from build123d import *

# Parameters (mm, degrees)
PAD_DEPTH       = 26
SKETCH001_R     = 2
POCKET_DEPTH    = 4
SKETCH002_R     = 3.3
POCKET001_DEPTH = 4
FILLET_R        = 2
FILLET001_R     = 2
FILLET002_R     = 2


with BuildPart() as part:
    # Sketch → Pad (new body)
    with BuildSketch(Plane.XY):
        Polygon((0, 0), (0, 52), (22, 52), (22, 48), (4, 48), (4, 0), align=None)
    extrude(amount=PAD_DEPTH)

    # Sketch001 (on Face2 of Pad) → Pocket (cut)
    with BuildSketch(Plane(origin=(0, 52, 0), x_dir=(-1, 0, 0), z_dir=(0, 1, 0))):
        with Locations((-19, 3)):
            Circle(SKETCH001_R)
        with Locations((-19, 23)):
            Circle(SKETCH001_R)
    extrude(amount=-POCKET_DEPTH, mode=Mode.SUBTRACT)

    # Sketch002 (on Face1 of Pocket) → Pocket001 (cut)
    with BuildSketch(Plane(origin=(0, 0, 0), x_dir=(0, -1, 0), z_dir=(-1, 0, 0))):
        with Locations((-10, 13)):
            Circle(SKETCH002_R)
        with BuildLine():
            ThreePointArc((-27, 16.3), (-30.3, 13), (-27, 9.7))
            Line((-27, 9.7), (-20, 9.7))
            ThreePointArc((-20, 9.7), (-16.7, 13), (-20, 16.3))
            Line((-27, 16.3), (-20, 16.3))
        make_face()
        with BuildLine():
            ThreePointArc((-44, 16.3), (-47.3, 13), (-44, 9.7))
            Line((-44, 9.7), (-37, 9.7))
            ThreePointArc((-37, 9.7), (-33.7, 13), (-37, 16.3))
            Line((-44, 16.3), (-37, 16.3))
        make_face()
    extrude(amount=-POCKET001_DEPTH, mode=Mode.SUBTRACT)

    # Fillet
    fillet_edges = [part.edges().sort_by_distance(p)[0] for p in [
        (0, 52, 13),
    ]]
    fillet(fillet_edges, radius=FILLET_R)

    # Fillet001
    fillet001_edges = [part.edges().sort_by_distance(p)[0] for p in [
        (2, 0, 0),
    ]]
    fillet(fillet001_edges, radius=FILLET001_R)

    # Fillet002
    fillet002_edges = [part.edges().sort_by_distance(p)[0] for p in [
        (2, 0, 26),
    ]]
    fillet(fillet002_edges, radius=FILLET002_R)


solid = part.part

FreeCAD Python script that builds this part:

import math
import FreeCAD as App
import Part
import Sketcher
from FreeCAD import Vector


def edges_at(feature, points):
    """Names of the edges that pass closest to the given points."""
    edges = feature.Shape.Edges
    near = lambda p: min(range(len(edges)), key=lambda i: edges[i].distToShape(Part.Vertex(*p))[0])
    return sorted({f"Edge{near(p) + 1}" for p in points})

doc = App.newDocument("Part")
body = doc.addObject("PartDesign::Body", "Body")

# Sketch on XY plane
sketch1 = body.newObject("Sketcher::SketchObject", "Sketch")
sketch1.AttachmentSupport = (doc.getObject("XY_Plane"), [""])
sketch1.MapMode = "FlatFace"
sketch1.addGeometry(Part.LineSegment(Vector(0, 52, 0), Vector(0, 0, 0)), False)
sketch1.addGeometry(Part.LineSegment(Vector(0, 0, 0), Vector(4, 0, 0)), False)
sketch1.addGeometry(Part.LineSegment(Vector(4, 0, 0), Vector(4, 48, 0)), False)
sketch1.addGeometry(Part.LineSegment(Vector(4, 48, 0), Vector(22, 48, 0)), False)
sketch1.addGeometry(Part.LineSegment(Vector(22, 48, 0), Vector(22, 52, 0)), False)
sketch1.addGeometry(Part.LineSegment(Vector(22, 52, 0), Vector(0, 52, 0)), False)
sketch1.addConstraint(Sketcher.Constraint("Coincident", 0, 2, 1, 1))
sketch1.addConstraint(Sketcher.Constraint("Coincident", 1, 2, 2, 1))
sketch1.addConstraint(Sketcher.Constraint("Coincident", 2, 2, 3, 1))
sketch1.addConstraint(Sketcher.Constraint("Coincident", 3, 2, 4, 1))
sketch1.addConstraint(Sketcher.Constraint("Coincident", 4, 2, 5, 1))
sketch1.addConstraint(Sketcher.Constraint("Coincident", 5, 2, 0, 1))
sketch1.addConstraint(Sketcher.Constraint("Vertical", 0))
sketch1.addConstraint(Sketcher.Constraint("Horizontal", 1))
sketch1.addConstraint(Sketcher.Constraint("Vertical", 2))
sketch1.addConstraint(Sketcher.Constraint("Horizontal", 3))
sketch1.addConstraint(Sketcher.Constraint("Vertical", 4))
sketch1.addConstraint(Sketcher.Constraint("Horizontal", 5))
sketch1.addConstraint(Sketcher.Constraint("Coincident", 0, 2, -1, 1))
sketch1.addConstraint(Sketcher.Constraint("Equal", 1, 4))
sketch1.addConstraint(Sketcher.Constraint("DistanceX", 1, 1, 1, 2, 4.0))
sketch1.addConstraint(Sketcher.Constraint("DistanceX", 3, 1, 3, 2, 18.0))
sketch1.addConstraint(Sketcher.Constraint("DistanceY", 0, 2, 0, 1, 52.0))
pad1 = body.newObject("PartDesign::Pad", "Pad")
pad1.Profile = sketch1
pad1.Length = 26

# Sketch on XZ plane
sketch2 = body.newObject("Sketcher::SketchObject", "Sketch001")
sketch2.AttachmentSupport = (doc.getObject("XZ_Plane"), [""])
sketch2.MapMode = "FlatFace"
sketch2.AttachmentOffset = App.Placement(Vector(0, 0, -52), App.Rotation())
sketch2.addGeometry(Part.Circle(Vector(19, 3, 0), Vector(0, 0, 1), 2), False)
sketch2.addGeometry(Part.Circle(Vector(19, 23, 0), Vector(0, 0, 1), 2), False)
sketch2.addConstraint(Sketcher.Constraint("Equal", 0, 1))
sketch2.addConstraint(Sketcher.Constraint("Vertical", 0, 3, 1, 3))
sketch2.addConstraint(Sketcher.Constraint("Diameter", 0, 4.0))
sketch2.addConstraint(Sketcher.Constraint("DistanceX", -1, 1, 0, 3, 19.0))
sketch2.addConstraint(Sketcher.Constraint("DistanceY", -1, 1, 0, 3, 3.0))
sketch2.addConstraint(Sketcher.Constraint("DistanceY", -1, 1, 1, 3, 23.0))
pocket1 = body.newObject("PartDesign::Pocket", "Pocket")
pocket1.Profile = sketch2
pocket1.Length = 4
pocket1.Reversed = True

# Sketch on YZ plane
sketch3 = body.newObject("Sketcher::SketchObject", "Sketch002")
sketch3.AttachmentSupport = (doc.getObject("YZ_Plane"), [""])
sketch3.MapMode = "FlatFace"
sketch3.addGeometry(Part.Circle(Vector(10, 13, 0), Vector(0, 0, 1), 3.3), False)
sketch3.addGeometry(Part.ArcOfCircle(Part.Circle(Vector(27, 13, 0), Vector(0, 0, 1), 3.3), math.radians(-90), math.radians(90)), False)
sketch3.addGeometry(Part.LineSegment(Vector(27, 9.7, 0), Vector(20, 9.7, 0)), False)
sketch3.addGeometry(Part.ArcOfCircle(Part.Circle(Vector(20, 13, 0), Vector(0, 0, 1), 3.3), math.radians(90), math.radians(270)), False)
sketch3.addGeometry(Part.LineSegment(Vector(20, 16.3, 0), Vector(27, 16.3, 0)), False)
sketch3.addGeometry(Part.ArcOfCircle(Part.Circle(Vector(44, 13, 0), Vector(0, 0, 1), 3.3), math.radians(-90), math.radians(90)), False)
sketch3.addGeometry(Part.LineSegment(Vector(44, 9.7, 0), Vector(37, 9.7, 0)), False)
sketch3.addGeometry(Part.ArcOfCircle(Part.Circle(Vector(37, 13, 0), Vector(0, 0, 1), 3.3), math.radians(90), math.radians(270)), False)
sketch3.addGeometry(Part.LineSegment(Vector(37, 16.3, 0), Vector(44, 16.3, 0)), False)
sketch3.addConstraint(Sketcher.Constraint("Tangent", 1, 1, 2, 1))
sketch3.addConstraint(Sketcher.Constraint("Tangent", 2, 2, 3, 2))
sketch3.addConstraint(Sketcher.Constraint("Tangent", 3, 1, 4, 1))
sketch3.addConstraint(Sketcher.Constraint("Tangent", 4, 2, 1, 2))
sketch3.addConstraint(Sketcher.Constraint("Tangent", 5, 1, 6, 1))
sketch3.addConstraint(Sketcher.Constraint("Tangent", 6, 2, 7, 2))
sketch3.addConstraint(Sketcher.Constraint("Tangent", 7, 1, 8, 1))
sketch3.addConstraint(Sketcher.Constraint("Tangent", 8, 2, 5, 2))
sketch3.addConstraint(Sketcher.Constraint("Horizontal", 2))
sketch3.addConstraint(Sketcher.Constraint("Horizontal", 4))
sketch3.addConstraint(Sketcher.Constraint("Horizontal", 6))
sketch3.addConstraint(Sketcher.Constraint("Horizontal", 8))
sketch3.addConstraint(Sketcher.Constraint("Equal", 0, 1))
sketch3.addConstraint(Sketcher.Constraint("Equal", 3, 5))
sketch3.addConstraint(Sketcher.Constraint("Horizontal", 0, 3, 1, 3))
sketch3.addConstraint(Sketcher.Constraint("Horizontal", 3, 3, 5, 3))
sketch3.addConstraint(Sketcher.Constraint("Equal", 4, 6))
sketch3.addConstraint(Sketcher.Constraint("Diameter", 0, 6.6))
sketch3.addConstraint(Sketcher.Constraint("DistanceX", 2, 2, 2, 1, 7.0))
sketch3.addConstraint(Sketcher.Constraint("DistanceX", -1, 1, 0, 3, 10.0))
sketch3.addConstraint(Sketcher.Constraint("DistanceY", -1, 1, 0, 3, 13.0))
sketch3.addConstraint(Sketcher.Constraint("DistanceX", -1, 1, 1, 3, 27.0))
sketch3.addConstraint(Sketcher.Constraint("DistanceX", -1, 1, 5, 3, 44.0))
pocket2 = body.newObject("PartDesign::Pocket", "Pocket001")
pocket2.Profile = sketch3
pocket2.Length = 4
pocket2.Reversed = True
doc.recompute()

fillet = body.newObject("PartDesign::Fillet", "Fillet")
fillet.Base = (pocket2, edges_at(pocket2, [(0, 52, 13)]))
fillet.Radius = 2
doc.recompute()

fillet2 = body.newObject("PartDesign::Fillet", "Fillet001")
fillet2.Base = (fillet, edges_at(fillet, [(2, 0, 0)]))
fillet2.Radius = 2
doc.recompute()

fillet3 = body.newObject("PartDesign::Fillet", "Fillet002")
fillet3.Base = (fillet2, edges_at(fillet2, [(2, 0, 26)]))
fillet3.Radius = 2

doc.recompute()
